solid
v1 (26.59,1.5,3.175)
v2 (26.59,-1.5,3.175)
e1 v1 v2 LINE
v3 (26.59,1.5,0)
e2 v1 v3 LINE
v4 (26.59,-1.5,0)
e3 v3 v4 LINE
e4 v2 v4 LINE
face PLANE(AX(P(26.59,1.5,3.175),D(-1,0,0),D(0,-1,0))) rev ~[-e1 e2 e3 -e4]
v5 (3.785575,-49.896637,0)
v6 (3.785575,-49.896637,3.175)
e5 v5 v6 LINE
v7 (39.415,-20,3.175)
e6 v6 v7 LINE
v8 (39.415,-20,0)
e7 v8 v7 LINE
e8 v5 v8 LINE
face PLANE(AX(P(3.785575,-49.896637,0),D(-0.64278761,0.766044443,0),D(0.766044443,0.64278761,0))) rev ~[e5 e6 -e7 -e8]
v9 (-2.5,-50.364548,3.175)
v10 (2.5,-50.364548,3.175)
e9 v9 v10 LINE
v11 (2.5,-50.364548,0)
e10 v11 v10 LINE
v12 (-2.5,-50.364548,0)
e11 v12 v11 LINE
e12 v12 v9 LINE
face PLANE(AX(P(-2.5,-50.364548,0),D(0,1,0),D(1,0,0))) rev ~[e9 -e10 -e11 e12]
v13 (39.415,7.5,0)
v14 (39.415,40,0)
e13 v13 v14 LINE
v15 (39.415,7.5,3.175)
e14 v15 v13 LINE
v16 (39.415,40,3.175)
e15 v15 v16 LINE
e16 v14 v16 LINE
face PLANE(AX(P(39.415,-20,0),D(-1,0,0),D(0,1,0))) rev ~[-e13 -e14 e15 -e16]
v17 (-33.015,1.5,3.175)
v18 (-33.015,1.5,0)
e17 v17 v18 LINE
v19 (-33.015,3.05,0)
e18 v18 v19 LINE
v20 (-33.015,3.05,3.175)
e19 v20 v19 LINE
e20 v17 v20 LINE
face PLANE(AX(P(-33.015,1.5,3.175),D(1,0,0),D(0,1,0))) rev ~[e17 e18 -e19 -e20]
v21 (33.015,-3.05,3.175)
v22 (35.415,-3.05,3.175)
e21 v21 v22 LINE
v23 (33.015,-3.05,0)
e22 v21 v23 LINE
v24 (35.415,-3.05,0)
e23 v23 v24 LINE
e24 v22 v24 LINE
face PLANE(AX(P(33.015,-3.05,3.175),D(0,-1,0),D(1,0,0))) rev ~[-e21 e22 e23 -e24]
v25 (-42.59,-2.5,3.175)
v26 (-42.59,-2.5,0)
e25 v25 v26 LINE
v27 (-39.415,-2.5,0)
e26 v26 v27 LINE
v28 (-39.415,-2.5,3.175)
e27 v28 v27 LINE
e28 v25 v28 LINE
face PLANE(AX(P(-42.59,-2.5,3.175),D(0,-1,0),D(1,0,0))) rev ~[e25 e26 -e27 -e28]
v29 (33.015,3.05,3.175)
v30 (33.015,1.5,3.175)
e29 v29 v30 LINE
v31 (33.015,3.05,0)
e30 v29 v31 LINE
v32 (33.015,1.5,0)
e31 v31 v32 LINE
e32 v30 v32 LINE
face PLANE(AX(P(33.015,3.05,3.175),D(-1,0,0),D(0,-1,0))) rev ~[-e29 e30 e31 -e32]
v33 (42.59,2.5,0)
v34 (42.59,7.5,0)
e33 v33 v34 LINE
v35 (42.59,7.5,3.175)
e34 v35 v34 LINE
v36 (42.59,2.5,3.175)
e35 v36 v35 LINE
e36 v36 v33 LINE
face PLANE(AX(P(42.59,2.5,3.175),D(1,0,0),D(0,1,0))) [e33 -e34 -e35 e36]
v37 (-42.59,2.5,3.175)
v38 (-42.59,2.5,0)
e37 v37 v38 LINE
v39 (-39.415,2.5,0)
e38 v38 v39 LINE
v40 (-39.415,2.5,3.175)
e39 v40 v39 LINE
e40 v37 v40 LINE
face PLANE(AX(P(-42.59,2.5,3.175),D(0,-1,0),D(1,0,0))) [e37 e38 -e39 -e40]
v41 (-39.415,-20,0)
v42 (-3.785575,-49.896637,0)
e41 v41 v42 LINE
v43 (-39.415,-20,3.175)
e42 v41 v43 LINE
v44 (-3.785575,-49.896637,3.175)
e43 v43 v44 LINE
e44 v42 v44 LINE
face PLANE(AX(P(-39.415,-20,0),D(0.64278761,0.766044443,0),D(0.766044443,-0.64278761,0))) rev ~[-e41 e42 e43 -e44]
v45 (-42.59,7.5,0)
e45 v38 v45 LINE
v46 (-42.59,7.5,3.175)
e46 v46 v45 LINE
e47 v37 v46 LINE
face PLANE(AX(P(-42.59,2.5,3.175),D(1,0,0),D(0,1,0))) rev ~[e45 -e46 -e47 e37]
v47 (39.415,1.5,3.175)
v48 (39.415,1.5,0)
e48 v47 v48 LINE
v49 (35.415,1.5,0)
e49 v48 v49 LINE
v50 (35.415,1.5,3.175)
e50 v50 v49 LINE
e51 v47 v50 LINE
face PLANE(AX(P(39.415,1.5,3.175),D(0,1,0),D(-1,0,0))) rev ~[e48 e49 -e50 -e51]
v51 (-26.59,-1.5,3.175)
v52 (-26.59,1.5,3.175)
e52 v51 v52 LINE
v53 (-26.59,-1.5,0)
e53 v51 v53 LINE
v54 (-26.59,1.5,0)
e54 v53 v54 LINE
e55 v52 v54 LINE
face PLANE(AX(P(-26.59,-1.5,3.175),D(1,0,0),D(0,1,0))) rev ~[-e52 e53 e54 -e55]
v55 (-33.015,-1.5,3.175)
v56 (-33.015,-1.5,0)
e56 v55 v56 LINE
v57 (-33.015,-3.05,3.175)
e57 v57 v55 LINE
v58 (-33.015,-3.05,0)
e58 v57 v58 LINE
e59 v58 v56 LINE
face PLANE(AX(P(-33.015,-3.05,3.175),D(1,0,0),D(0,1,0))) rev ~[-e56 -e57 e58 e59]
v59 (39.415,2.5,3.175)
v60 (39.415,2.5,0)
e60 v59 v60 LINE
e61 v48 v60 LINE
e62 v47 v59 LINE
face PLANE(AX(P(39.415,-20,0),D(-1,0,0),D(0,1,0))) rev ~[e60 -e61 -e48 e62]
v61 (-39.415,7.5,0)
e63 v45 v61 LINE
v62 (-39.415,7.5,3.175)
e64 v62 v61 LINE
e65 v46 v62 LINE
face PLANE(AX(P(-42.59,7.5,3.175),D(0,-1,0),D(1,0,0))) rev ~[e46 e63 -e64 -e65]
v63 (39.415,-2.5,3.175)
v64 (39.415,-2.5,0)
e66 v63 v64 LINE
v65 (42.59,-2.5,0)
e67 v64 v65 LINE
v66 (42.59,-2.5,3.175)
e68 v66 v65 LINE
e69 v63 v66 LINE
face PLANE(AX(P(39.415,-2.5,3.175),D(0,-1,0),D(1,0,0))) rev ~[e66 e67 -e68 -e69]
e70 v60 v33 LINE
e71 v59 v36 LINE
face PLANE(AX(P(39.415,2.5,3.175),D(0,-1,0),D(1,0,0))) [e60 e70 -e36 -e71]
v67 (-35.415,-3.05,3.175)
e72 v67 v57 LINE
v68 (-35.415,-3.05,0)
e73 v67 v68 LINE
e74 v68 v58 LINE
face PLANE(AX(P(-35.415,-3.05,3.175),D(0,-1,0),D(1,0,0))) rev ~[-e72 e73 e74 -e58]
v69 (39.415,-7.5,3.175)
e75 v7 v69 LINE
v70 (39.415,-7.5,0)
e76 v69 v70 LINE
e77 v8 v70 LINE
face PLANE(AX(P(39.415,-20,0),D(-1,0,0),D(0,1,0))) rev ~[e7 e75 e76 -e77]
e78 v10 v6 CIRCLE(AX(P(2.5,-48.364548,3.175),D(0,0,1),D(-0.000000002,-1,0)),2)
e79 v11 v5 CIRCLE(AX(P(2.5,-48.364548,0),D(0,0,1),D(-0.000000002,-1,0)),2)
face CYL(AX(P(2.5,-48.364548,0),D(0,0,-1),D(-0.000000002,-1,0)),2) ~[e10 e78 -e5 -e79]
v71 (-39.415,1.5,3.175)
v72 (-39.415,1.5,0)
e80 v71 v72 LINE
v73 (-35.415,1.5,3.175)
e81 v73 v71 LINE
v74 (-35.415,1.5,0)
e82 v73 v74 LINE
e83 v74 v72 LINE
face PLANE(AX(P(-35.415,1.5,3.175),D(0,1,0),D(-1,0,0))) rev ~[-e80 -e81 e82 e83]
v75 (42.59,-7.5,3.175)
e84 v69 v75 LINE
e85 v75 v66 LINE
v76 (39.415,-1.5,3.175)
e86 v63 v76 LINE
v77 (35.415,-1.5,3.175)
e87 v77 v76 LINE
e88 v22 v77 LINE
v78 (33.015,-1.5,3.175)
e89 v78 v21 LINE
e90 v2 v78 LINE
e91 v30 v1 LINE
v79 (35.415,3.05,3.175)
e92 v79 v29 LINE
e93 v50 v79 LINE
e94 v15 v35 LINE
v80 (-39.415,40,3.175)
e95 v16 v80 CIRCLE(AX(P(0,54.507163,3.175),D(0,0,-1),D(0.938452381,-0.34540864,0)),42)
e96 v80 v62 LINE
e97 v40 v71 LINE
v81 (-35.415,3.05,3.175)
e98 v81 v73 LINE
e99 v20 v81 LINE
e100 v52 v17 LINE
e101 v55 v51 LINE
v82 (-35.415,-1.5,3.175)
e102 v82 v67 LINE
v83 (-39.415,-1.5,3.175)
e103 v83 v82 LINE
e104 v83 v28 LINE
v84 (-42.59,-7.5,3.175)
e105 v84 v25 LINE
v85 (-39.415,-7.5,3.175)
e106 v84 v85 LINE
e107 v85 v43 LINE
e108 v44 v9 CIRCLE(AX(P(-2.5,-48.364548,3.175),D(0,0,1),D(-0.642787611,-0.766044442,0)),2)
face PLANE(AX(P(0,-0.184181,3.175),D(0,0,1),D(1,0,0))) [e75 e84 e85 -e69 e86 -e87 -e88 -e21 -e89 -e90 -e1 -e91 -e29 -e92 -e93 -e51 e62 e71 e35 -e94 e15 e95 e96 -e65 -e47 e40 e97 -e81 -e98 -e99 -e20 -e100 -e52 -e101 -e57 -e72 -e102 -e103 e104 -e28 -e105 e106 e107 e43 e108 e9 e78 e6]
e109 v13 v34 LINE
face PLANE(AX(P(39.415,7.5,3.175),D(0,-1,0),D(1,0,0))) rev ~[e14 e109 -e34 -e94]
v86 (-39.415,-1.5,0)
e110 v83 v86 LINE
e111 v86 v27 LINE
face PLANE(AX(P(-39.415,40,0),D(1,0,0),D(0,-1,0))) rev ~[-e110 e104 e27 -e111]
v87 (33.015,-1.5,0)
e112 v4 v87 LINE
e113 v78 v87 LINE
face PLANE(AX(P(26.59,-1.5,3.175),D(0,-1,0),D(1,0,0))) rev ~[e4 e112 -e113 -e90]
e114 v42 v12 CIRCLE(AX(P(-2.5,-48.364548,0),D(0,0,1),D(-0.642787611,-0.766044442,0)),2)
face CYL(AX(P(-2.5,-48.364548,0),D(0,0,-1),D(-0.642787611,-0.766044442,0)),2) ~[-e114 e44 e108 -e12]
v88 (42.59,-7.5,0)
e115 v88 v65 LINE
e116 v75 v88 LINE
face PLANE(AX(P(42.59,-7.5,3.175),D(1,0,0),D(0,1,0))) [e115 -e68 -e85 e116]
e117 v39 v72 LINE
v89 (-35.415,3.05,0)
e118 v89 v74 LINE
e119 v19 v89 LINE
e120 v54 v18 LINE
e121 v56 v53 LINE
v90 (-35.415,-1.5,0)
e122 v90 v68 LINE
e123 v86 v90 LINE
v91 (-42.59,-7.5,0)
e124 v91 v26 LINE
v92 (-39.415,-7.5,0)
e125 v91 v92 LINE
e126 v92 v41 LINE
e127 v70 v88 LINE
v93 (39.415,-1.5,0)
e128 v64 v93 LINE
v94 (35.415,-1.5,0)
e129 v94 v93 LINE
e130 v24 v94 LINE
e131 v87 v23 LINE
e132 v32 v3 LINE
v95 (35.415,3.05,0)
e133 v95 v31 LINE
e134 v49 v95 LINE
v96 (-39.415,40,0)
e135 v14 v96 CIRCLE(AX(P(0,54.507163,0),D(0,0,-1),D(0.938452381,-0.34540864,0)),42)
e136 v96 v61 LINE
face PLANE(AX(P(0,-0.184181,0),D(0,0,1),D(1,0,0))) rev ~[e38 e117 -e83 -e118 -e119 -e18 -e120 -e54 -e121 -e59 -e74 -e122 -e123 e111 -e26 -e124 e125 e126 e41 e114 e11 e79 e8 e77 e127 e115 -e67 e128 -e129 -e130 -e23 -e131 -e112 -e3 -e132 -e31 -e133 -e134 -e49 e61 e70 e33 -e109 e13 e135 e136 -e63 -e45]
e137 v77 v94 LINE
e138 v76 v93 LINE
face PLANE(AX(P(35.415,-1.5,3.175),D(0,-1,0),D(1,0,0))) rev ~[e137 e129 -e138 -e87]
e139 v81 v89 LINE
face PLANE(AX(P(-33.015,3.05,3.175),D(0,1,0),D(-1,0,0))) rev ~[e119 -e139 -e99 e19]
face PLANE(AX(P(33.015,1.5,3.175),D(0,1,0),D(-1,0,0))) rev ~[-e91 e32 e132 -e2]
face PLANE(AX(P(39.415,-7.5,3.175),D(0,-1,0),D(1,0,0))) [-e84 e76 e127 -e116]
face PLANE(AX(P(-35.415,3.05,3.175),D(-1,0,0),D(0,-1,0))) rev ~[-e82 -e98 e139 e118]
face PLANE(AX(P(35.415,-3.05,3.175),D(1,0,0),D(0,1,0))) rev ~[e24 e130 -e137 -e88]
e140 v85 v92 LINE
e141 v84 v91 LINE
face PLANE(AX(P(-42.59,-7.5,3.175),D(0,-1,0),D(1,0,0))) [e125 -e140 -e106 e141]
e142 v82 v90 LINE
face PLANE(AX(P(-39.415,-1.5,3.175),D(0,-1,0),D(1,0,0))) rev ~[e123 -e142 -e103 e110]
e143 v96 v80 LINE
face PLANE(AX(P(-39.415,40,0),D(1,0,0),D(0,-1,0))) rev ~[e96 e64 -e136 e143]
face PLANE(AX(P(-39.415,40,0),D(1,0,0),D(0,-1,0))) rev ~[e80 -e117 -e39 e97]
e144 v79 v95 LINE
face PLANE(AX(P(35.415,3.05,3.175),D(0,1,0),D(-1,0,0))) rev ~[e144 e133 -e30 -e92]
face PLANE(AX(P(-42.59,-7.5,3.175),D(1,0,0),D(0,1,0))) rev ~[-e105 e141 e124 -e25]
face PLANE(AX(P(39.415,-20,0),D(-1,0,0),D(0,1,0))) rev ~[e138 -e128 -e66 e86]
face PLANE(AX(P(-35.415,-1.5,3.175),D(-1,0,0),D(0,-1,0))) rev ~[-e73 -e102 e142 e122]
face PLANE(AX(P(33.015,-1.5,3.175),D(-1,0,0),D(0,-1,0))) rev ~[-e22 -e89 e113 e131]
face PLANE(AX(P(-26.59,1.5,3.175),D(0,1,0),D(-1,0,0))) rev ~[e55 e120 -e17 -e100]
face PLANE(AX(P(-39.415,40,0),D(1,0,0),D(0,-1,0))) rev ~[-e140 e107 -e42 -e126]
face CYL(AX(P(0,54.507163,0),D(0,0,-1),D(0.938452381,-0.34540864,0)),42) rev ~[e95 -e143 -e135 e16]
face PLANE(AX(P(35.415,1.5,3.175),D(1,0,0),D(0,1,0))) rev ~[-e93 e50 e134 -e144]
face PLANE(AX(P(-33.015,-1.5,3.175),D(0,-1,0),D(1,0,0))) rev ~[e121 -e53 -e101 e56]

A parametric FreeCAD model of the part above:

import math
import FreeCAD as App
import Part
import Sketcher
from FreeCAD import Vector
Q = App.Units.Quantity


def add_polygon(sketch, points):
    """Adds a closed chain of lines whose ends are joined by coincident constraints."""
    first, n = sketch.GeometryCount, len(points)
    for a, b in zip(points, points[1:] + points[:1]):
        sketch.addGeometry(Part.LineSegment(App.Vector(*a, 0), App.Vector(*b, 0)), False)
    for i in range(n):
        sketch.addConstraint(Sketcher.Constraint("Coincident", first + i, 2, first + (i + 1) % n, 1))

doc = App.newDocument("Part")
body = doc.addObject("PartDesign::Body", "Body")

sketch1 = body.newObject("Sketcher::SketchObject", "Sketch")
sketch1.AttachmentSupport = (doc.getObject("XY_Plane"), [""])
sketch1.MapMode = "FlatFace"
sketch1.addGeometry(Part.LineSegment(Vector(39.4, -20, 0), Vector(39.4, 40, 0)), False)
sketch1.addGeometry(Part.ArcOfCircle(Part.Circle(Vector(0, 54.5, 0), Vector(0, 0, 1), 42), math.radians(-160), math.radians(-20)), False)
sketch1.addGeometry(Part.LineSegment(Vector(-39.4, 40, 0), Vector(-39.4, -20, 0)), False)
sketch1.addGeometry(Part.LineSegment(Vector(-39.4, -20, 0), Vector(-3.8, -49.9, 0)), False)
sketch1.addGeometry(Part.ArcOfCircle(Part.Circle(Vector(-2.5, -48.4, 0), Vector(0, 0, 1), 2), math.radians(-130), math.radians(-90)), False)
sketch1.addGeometry(Part.LineSegment(Vector(-2.5, -50.4, 0), Vector(2.5, -50.4, 0)), False)
sketch1.addGeometry(Part.ArcOfCircle(Part.Circle(Vector(2.5, -48.4, 0), Vector(0, 0, 1), 2), math.radians(-90), math.radians(-50)), False)
sketch1.addGeometry(Part.LineSegment(Vector(3.8, -49.9, 0), Vector(39.4, -20, 0)), False)
sketch1.addConstraint(Sketcher.Constraint("Coincident", 0, 2, 1, 2))
sketch1.addConstraint(Sketcher.Constraint("Coincident", 1, 1, 2, 1))
sketch1.addConstraint(Sketcher.Constraint("Coincident", 2, 2, 3, 1))
sketch1.addConstraint(Sketcher.Constraint("Tangent", 3, 2, 4, 1))
sketch1.addConstraint(Sketcher.Constraint("Tangent", 4, 2, 5, 1))
sketch1.addConstraint(Sketcher.Constraint("Tangent", 5, 2, 6, 1))
sketch1.addConstraint(Sketcher.Constraint("Tangent", 6, 2, 7, 1))
sketch1.addConstraint(Sketcher.Constraint("Coincident", 7, 2, 0, 1))
sketch1.addConstraint(Sketcher.Constraint("Vertical", 0))
sketch1.addConstraint(Sketcher.Constraint("Vertical", 2))
sketch1.addConstraint(Sketcher.Constraint("Horizontal", 5))
sketch1.addConstraint(Sketcher.Constraint("Equal", 4, 6))
sketch1.addConstraint(Sketcher.Constraint("Symmetric", 0, 2, 1, 1, -2))
sketch1.addConstraint(Sketcher.Constraint("Symmetric", 3, 2, 6, 2, -2))
sketch1.addConstraint(Sketcher.Constraint("Radius", 1, 42.0))
sketch1.addConstraint(Sketcher.Constraint("Radius", 4, 2.0))
sketch1.addConstraint(Sketcher.Constraint("DistanceX", 5, 1, 5, 2, 5.0))
sketch1.addConstraint(Sketcher.Constraint("DistanceY", 0, 1, 0, 2, 60.0))
sketch1.addConstraint(Sketcher.Constraint("Angle", 3, Q("-40 deg")))
sketch1.addConstraint(Sketcher.Constraint("DistanceY", -1, 1, 0, 2, 40.0))
sketch1.addConstraint(Sketcher.Constraint("DistanceX", 1, 1, 0, 2, 78.83))
pad1 = body.newObject("PartDesign::Pad", "Pad")
pad1.Profile = sketch1
pad1.Length = 3.175

sketch2 = body.newObject("Sketcher::SketchObject", "Sketch001")
sketch2.AttachmentSupport = (doc.getObject("XY_Plane"), [""])
sketch2.MapMode = "FlatFace"
sketch2.AttachmentOffset = App.Placement(Vector(0, 0, 3.175), App.Rotation())
add_polygon(sketch2, [(39.4, -2.5), (39.4, -7.5), (42.6, -7.5), (42.6, -2.5)])
add_polygon(sketch2, [(39.4, 7.5), (39.4, 2.5), (42.6, 2.5), (42.6, 7.5)])
add_polygon(sketch2, [(-42.6, 7.5), (-42.6, 2.5), (-39.4, 2.5), (-39.4, 7.5)])
add_polygon(sketch2, [(-42.6, -2.5), (-42.6, -7.5), (-39.4, -7.5), (-39.4, -2.5)])
sketch2.addConstraint(Sketcher.Constraint("Vertical", 0))
sketch2.addConstraint(Sketcher.Constraint("Horizontal", 1))
sketch2.addConstraint(Sketcher.Constraint("Vertical", 2))
sketch2.addConstraint(Sketcher.Constraint("Horizontal", 3))
sketch2.addConstraint(Sketcher.Constraint("Vertical", 4))
sketch2.addConstraint(Sketcher.Constraint("Horizontal", 5))
sketch2.addConstraint(Sketcher.Constraint("Vertical", 6))
sketch2.addConstraint(Sketcher.Constraint("Horizontal", 7))
sketch2.addConstraint(Sketcher.Constraint("Vertical", 8))
sketch2.addConstraint(Sketcher.Constraint("Horizontal", 9))
sketch2.addConstraint(Sketcher.Constraint("Vertical", 10))
sketch2.addConstraint(Sketcher.Constraint("Horizontal", 11))
sketch2.addConstraint(Sketcher.Constraint("Vertical", 12))
sketch2.addConstraint(Sketcher.Constraint("Horizontal", 13))
sketch2.addConstraint(Sketcher.Constraint("Vertical", 14))
sketch2.addConstraint(Sketcher.Constraint("Horizontal", 15))
sketch2.addConstraint(Sketcher.Constraint("Symmetric", 2, 2, 8, 2, -1, 1))
sketch2.addConstraint(Sketcher.Constraint("Symmetric", 0, 2, 10, 2, -1, 1))
sketch2.addConstraint(Sketcher.Constraint("Symmetric", 6, 2, 12, 2, -1, 1))
sketch2.addConstraint(Sketcher.Constraint("Symmetric", 4, 2, 14, 2, -1, 1))
sketch2.addConstraint(Sketcher.Constraint("Symmetric", 5, 2, 8, 2, -2))
sketch2.addConstraint(Sketcher.Constraint("Symmetric", 7, 2, 10, 2, -2))
sketch2.addConstraint(Sketcher.Constraint("DistanceY", 0, 2, 0, 1, 5.0))
sketch2.addConstraint(Sketcher.Constraint("DistanceY", 3, 2, 4, 2, 5.0))
sketch2.addConstraint(Sketcher.Constraint("DistanceX", 1, 1, 1, 2, 3.175))
sketch2.addConstraint(Sketcher.Constraint("DistanceX", -1, 1, 1, 2, 42.59))
pad2 = body.newObject("PartDesign::Pad", "Pad001")
pad2.Profile = sketch2
pad2.Length = 3.175
pad2.Reversed = True

sketch3 = body.newObject("Sketcher::SketchObject", "Sketch002")
sketch3.AttachmentSupport = (doc.getObject("XY_Plane"), [""])
sketch3.MapMode = "FlatFace"
sketch3.AttachmentOffset = App.Placement(Vector(0, 0, 3.175), App.Rotation())
add_polygon(sketch3, [(39.4, 1.5), (35.4, 1.5), (35.4, 3), (33, 3), (33, 1.5), (26.6, 1.5), (26.6, -1.5), (33, -1.5), (33, -3), (35.4, -3), (35.4, -1.5), (39.4, -1.5)])
add_polygon(sketch3, [(-39.4, -1.5), (-35.4, -1.5), (-35.4, -3), (-33, -3), (-33, -1.5), (-26.6, -1.5), (-26.6, 1.5), (-33, 1.5), (-33, 3), (-35.4, 3), (-35.4, 1.5), (-39.4, 1.5)])
sketch3.addConstraint(Sketcher.Constraint("Horizontal", 0))
sketch3.addConstraint(Sketcher.Constraint("Vertical", 1))
sketch3.addConstraint(Sketcher.Constraint("Horizontal", 2))
sketch3.addConstraint(Sketcher.Constraint("Vertical", 3))
sketch3.addConstraint(Sketcher.Constraint("Horizontal", 4))
sketch3.addConstraint(Sketcher.Constraint("Vertical", 5))
sketch3.addConstraint(Sketcher.Constraint("Horizontal", 6))
sketch3.addConstraint(Sketcher.Constraint("Vertical", 7))
sketch3.addConstraint(Sketcher.Constraint("Horizontal", 8))
sketch3.addConstraint(Sketcher.Constraint("Vertical", 9))
sketch3.addConstraint(Sketcher.Constraint("Horizontal", 10))
sketch3.addConstraint(Sketcher.Constraint("Vertical", 11))
sketch3.addConstraint(Sketcher.Constraint("Horizontal", 12))
sketch3.addConstraint(Sketcher.Constraint("Vertical", 13))
sketch3.addConstraint(Sketcher.Constraint("Horizontal", 14))
sketch3.addConstraint(Sketcher.Constraint("Vertical", 15))
sketch3.addConstraint(Sketcher.Constraint("Horizontal", 16))
sketch3.addConstraint(Sketcher.Constraint("Vertical", 17))
sketch3.addConstraint(Sketcher.Constraint("Horizontal", 18))
sketch3.addConstraint(Sketcher.Constraint("Vertical", 19))
sketch3.addConstraint(Sketcher.Constraint("Horizontal", 20))
sketch3.addConstraint(Sketcher.Constraint("Vertical", 21))
sketch3.addConstraint(Sketcher.Constraint("Horizontal", 22))
sketch3.addConstraint(Sketcher.Constraint("Vertical", 23))
sketch3.addConstraint(Sketcher.Constraint("Symmetric", 0, 2, 12, 2, -1, 1))
sketch3.addConstraint(Sketcher.Constraint("Symmetric", 2, 2, 14, 2, -1, 1))
sketch3.addConstraint(Sketcher.Constraint("Symmetric", 4, 2, 16, 2, -1, 1))
sketch3.addConstraint(Sketcher.Constraint("Symmetric", 6, 2, 18, 2, -1, 1))
sketch3.addConstraint(Sketcher.Constraint("Symmetric", 8, 2, 20, 2, -1, 1))
sketch3.addConstraint(Sketcher.Constraint("Symmetric", 10, 2, 22, 2, -1, 1))
sketch3.addConstraint(Sketcher.Constraint("Symmetric", 9, 2, 12, 2, -2))
sketch3.addConstraint(Sketcher.Constraint("Symmetric", 7, 2, 14, 2, -2))
sketch3.addConstraint(Sketcher.Constraint("Horizontal", 0, 2, 3, 2))
sketch3.addConstraint(Sketcher.Constraint("Horizontal", 6, 2, 9, 2))
sketch3.addConstraint(Sketcher.Constraint("DistanceX", 0, 2, 0, 1, 4.0))
sketch3.addConstraint(Sketcher.Constraint("DistanceY", 5, 2, 5, 1, 3.0))
sketch3.addConstraint(Sketcher.Constraint("DistanceX", 2, 2, 2, 1, 2.4))
sketch3.addConstraint(Sketcher.Constraint("DistanceY", 1, 1, 1, 2, 1.55))
sketch3.addConstraint(Sketcher.Constraint("DistanceX", 4, 2, 4, 1, 6.425))
sketch3.addConstraint(Sketcher.Constraint("DistanceX", -1, 1, 4, 2, 26.59))
pocket1 = body.newObject("PartDesign::Pocket", "Pocket")
pocket1.Profile = sketch3
pocket1.Type = "ThroughAll"

doc.recompute()
